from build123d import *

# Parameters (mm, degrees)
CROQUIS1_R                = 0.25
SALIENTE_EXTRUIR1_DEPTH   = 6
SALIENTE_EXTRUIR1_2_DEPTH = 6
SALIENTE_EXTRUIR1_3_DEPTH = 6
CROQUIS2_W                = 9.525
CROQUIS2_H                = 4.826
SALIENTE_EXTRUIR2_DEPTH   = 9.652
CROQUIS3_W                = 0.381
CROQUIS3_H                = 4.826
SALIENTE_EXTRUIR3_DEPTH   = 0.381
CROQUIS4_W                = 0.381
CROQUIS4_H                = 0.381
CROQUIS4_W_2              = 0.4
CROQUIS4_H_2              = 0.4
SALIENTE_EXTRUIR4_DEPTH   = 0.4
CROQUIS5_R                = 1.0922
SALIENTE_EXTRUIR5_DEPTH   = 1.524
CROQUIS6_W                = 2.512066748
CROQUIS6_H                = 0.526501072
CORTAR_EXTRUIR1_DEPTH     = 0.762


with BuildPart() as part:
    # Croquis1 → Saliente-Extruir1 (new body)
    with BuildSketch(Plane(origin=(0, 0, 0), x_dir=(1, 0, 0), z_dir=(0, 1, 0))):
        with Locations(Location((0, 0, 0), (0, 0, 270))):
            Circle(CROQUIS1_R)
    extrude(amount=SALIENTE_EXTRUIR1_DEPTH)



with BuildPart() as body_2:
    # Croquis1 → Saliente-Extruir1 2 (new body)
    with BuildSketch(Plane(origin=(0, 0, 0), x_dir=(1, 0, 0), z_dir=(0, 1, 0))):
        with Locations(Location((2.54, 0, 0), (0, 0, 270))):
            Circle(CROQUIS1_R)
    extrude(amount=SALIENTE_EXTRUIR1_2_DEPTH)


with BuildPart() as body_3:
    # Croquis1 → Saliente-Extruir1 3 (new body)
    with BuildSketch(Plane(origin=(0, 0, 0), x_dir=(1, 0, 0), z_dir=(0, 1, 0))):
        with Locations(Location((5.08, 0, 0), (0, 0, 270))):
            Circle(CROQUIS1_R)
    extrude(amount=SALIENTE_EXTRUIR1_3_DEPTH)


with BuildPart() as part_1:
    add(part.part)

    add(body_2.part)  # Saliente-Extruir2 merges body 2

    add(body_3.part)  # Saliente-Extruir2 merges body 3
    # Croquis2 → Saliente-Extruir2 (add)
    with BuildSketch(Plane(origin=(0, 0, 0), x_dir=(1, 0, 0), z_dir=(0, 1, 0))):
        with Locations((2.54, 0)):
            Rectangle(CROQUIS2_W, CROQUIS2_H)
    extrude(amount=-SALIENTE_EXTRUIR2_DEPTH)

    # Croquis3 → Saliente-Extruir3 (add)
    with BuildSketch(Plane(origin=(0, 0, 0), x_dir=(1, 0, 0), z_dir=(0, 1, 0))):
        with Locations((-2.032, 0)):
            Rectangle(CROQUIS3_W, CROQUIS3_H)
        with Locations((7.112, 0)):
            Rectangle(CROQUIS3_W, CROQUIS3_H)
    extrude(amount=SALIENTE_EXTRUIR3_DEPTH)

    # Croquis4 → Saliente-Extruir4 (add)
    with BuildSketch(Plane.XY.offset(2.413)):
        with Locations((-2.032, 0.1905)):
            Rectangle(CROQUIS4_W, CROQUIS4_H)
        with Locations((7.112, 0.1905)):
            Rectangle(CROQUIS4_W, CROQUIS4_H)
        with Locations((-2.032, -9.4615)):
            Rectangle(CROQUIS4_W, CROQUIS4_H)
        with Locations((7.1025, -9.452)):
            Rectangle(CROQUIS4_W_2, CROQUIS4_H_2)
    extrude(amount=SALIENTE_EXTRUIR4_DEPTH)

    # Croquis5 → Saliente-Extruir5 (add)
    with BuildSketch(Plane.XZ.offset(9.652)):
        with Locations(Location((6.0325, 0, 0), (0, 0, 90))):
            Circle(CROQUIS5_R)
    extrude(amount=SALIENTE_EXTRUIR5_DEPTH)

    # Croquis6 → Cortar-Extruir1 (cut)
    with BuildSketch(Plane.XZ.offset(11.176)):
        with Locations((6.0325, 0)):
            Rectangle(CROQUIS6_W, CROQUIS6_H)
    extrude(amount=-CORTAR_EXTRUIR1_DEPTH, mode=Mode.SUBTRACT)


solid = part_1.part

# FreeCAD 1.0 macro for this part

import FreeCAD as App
import Part
import Sketcher
Q = App.Units.Quantity


def add_polygon(sketch, points):
    """Adds a closed chain of lines whose ends are joined by coincident constraints."""
    first, n = sketch.GeometryCount, len(points)
    for a, b in zip(points, points[1:] + points[:1]):
        sketch.addGeometry(Part.LineSegment(App.Vector(*a, 0), App.Vector(*b, 0)), False)
    for i in range(n):
        sketch.addConstraint(Sketcher.Constraint("Coincident", first + i, 2, first + (i + 1) % n, 1))

doc = App.newDocument("Part")
body = doc.addObject("PartDesign::Body", "Body")

sketch1 = body.newObject("Sketcher::SketchObject", "Sketch")
sketch1.AttachmentSupport = (doc.getObject("XZ_Plane"), [""])
sketch1.MapMode = "FlatFace"
sketch1.addGeometry(Part.Circle(App.Vector(0, 0, 0), App.Vector(0, 0, 1), 0.25), False)
sketch1.addConstraint(Sketcher.Constraint("Coincident", 0, 3, -1, 1))
sketch1.addConstraint(Sketcher.Constraint("Diameter", 0, 0.5))
pad1 = body.newObject("PartDesign::Pad", "Pad")
pad1.Profile = sketch1
pad1.Length = 6
pad1.Reversed = True
body2 = doc.addObject("PartDesign::Body", "Body001")

sketch2 = body2.newObject("Sketcher::SketchObject", "Sketch001")
sketch2.AttachmentSupport = (doc.getObject("XZ_Plane001"), [""])
sketch2.MapMode = "FlatFace"
sketch2.addGeometry(Part.Circle(App.Vector(2.54, 0, 0), App.Vector(0, 0, 1), 0.25), False)
sketch2.addConstraint(Sketcher.Constraint("PointOnObject", 0, 3, -1))
sketch2.addConstraint(Sketcher.Constraint("DistanceX", -1, 1, 0, 3, Q("0.1 in")))
sketch2.addConstraint(Sketcher.Constraint("Diameter", 0, 0.5))
pad2 = body2.newObject("PartDesign::Pad", "Pad001")
pad2.Profile = sketch2
pad2.Length = 6
pad2.Reversed = True
body3 = doc.addObject("PartDesign::Body", "Body002")

sketch3 = body3.newObject("Sketcher::SketchObject", "Sketch002")
sketch3.AttachmentSupport = (doc.getObject("XZ_Plane002"), [""])
sketch3.MapMode = "FlatFace"
sketch3.addGeometry(Part.Circle(App.Vector(5.08, 0, 0), App.Vector(0, 0, 1), 0.25), False)
sketch3.addConstraint(Sketcher.Constraint("PointOnObject", 0, 3, -1))
sketch3.addConstraint(Sketcher.Constraint("DistanceX", -1, 1, 0, 3, Q("0.2 in")))
sketch3.addConstraint(Sketcher.Constraint("Diameter", 0, 0.5))
pad3 = body3.newObject("PartDesign::Pad", "Pad002")
pad3.Profile = sketch3
pad3.Length = 6
pad3.Reversed = True
body.AllowCompound = True
doc.recompute()

boolean = body.newObject("PartDesign::Boolean", "Boolean")
boolean.Type = "Fuse"
boolean.addObjects([body2])
doc.recompute()

boolean2 = body.newObject("PartDesign::Boolean", "Boolean001")
boolean2.Type = "Fuse"
boolean2.addObjects([body3])

sketch4 = body.newObject("Sketcher::SketchObject", "Sketch003")
sketch4.AttachmentSupport = (doc.getObject("XZ_Plane"), [""])
sketch4.MapMode = "FlatFace"
add_polygon(sketch4, [(-2.2, -2.4), (-2.2, 2.4), (7.3, 2.4), (7.3, -2.4)])
sketch4.addConstraint(Sketcher.Constraint("Vertical", 0))
sketch4.addConstraint(Sketcher.Constraint("Horizontal", 1))
sketch4.addConstraint(Sketcher.Constraint("Vertical", 2))
sketch4.addConstraint(Sketcher.Constraint("Horizontal", 3))
sketch4.addConstraint(Sketcher.Constraint("DistanceY", 0, 1, 0, 2, Q("0.19 in")))
sketch4.addConstraint(Sketcher.Constraint("DistanceX", 1, 1, 1, 2, Q("0.375 in")))
sketch4.addConstraint(Sketcher.Constraint("DistanceY", -1, 1, 0, 2, Q("0.095 in")))
sketch4.addConstraint(Sketcher.Constraint("DistanceX", 0, 2, -1, 1, Q("0.0875 in")))
pad4 = body.newObject("PartDesign::Pad", "Pad003")
pad4.Profile = sketch4
pad4.Length = Q("0.38 in")

sketch5 = body.newObject("Sketcher::SketchObject", "Sketch004")
sketch5.AttachmentSupport = (doc.getObject("XZ_Plane"), [""])
sketch5.MapMode = "FlatFace"
add_polygon(sketch5, [(-2.22, -2.41), (-2.22, 2.41), (-1.84, 2.41), (-1.84, -2.41)])
add_polygon(sketch5, [(6.92, -2.41), (6.92, 2.41), (7.3, 2.41), (7.3, -2.41)])
sketch5.addConstraint(Sketcher.Constraint("Vertical", 0))
sketch5.addConstraint(Sketcher.Constraint("Horizontal", 1))
sketch5.addConstraint(Sketcher.Constraint("Vertical", 2))
sketch5.addConstraint(Sketcher.Constraint("Horizontal", 3))
sketch5.addConstraint(Sketcher.Constraint("Vertical", 4))
sketch5.addConstraint(Sketcher.Constraint("Horizontal", 5))
sketch5.addConstraint(Sketcher.Constraint("Vertical", 6))
sketch5.addConstraint(Sketcher.Constraint("Horizontal", 7))
sketch5.addConstraint(Sketcher.Constraint("Horizontal", 1, 2, 4, 2))
sketch5.addConstraint(Sketcher.Constraint("Horizontal", 3, 2, 6, 2))
sketch5.addConstraint(Sketcher.Constraint("Equal", 3, 5))
sketch5.addConstraint(Sketcher.Constraint("DistanceY", 0, 1, 0, 2, Q("0.19 in")))
sketch5.addConstraint(Sketcher.Constraint("DistanceX", 1, 1, 1, 2, Q("0.015 in")))
sketch5.addConstraint(Sketcher.Constraint("DistanceX", 0, 2, 4, 2, Q("0.36 in")))
sketch5.addConstraint(Sketcher.Constraint("DistanceY", -1, 1, 0, 2, Q("0.095 in")))
sketch5.addConstraint(Sketcher.Constraint("DistanceX", 0, 2, -1, 1, Q("0.0875 in")))
pad5 = body.newObject("PartDesign::Pad", "Pad004")
pad5.Profile = sketch5
pad5.Length = Q("0.015 in")
pad5.Reversed = True

sketch6 = body.newObject("Sketcher::SketchObject", "Sketch005")
sketch6.AttachmentSupport = (doc.getObject("XY_Plane"), [""])
sketch6.MapMode = "FlatFace"
sketch6.AttachmentOffset = App.Placement(App.Vector(0, 0, 0.095 * 25.4), App.Rotation())
add_polygon(sketch6, [(-2.22, 0.38), (-2.22, 0), (-1.84, 0), (-1.84, 0.38)])
add_polygon(sketch6, [(6.92, 0.38), (6.92, 0), (7.3, 0), (7.3, 0.38)])
add_polygon(sketch6, [(-2.22, -9.27), (-2.22, -9.65), (-1.84, -9.65), (-1.84, -9.27)])
add_polygon(sketch6, [(6.9, -9.25), (6.9, -9.65), (7.3, -9.65), (7.3, -9.25)])
sketch6.addConstraint(Sketcher.Constraint("Vertical", 0))
sketch6.addConstraint(Sketcher.Constraint("Horizontal", 1))
sketch6.addConstraint(Sketcher.Constraint("Vertical", 2))
sketch6.addConstraint(Sketcher.Constraint("Horizontal", 3))
sketch6.addConstraint(Sketcher.Constraint("Vertical", 4))
sketch6.addConstraint(Sketcher.Constraint("Horizontal", 5))
sketch6.addConstraint(Sketcher.Constraint("Vertical", 6))
sketch6.addConstraint(Sketcher.Constraint("Horizontal", 7))
sketch6.addConstraint(Sketcher.Constraint("Vertical", 8))
sketch6.addConstraint(Sketcher.Constraint("Horizontal", 9))
sketch6.addConstraint(Sketcher.Constraint("Vertical", 10))
sketch6.addConstraint(Sketcher.Constraint("Horizontal", 11))
sketch6.addConstraint(Sketcher.Constraint("Vertical", 12))
sketch6.addConstraint(Sketcher.Constraint("Horizontal", 13))
sketch6.addConstraint(Sketcher.Constraint("Vertical", 14))
sketch6.addConstraint(Sketcher.Constraint("Horizontal", 15))
sketch6.addConstraint(Sketcher.Constraint("PointOnObject", 0, 2, -1))
sketch6.addConstraint(Sketcher.Constraint("PointOnObject", 4, 2, -1))
sketch6.addConstraint(Sketcher.Constraint("Horizontal", 3, 2, 6, 2))
sketch6.addConstraint(Sketcher.Constraint("Horizontal", 9, 2, 12, 2))
sketch6.addConstraint(Sketcher.Constraint("Vertical", 3, 2, 8, 2))
sketch6.addConstraint(Sketcher.Constraint("Vertical", 2, 2, 9, 2))
sketch6.addConstraint(Sketcher.Constraint("Vertical", 6, 2, 13, 2))
sketch6.addConstraint(Sketcher.Constraint("Equal", 3, 5))
sketch6.addConstraint(Sketcher.Constraint("Equal", 11, 0))
sketch6.addConstraint(Sketcher.Constraint("Equal", 6, 8))
sketch6.addConstraint(Sketcher.Constraint("Equal", 15, 12))
sketch6.addConstraint(Sketcher.Constraint("DistanceX", 1, 1, 1, 2, Q("0.015 in")))
sketch6.addConstraint(Sketcher.Constraint("DistanceY", 8, 2, -1, 1, Q("0.38 in")))
sketch6.addConstraint(Sketcher.Constraint("DistanceX", 0, 2, 4, 2, Q("0.36 in")))
sketch6.addConstraint(Sketcher.Constraint("DistanceX", 13, 1, 13, 2, 0.4))
sketch6.addConstraint(Sketcher.Constraint("DistanceX", 0, 2, -1, 1, Q("0.0875 in")))
pad6 = body.newObject("PartDesign::Pad", "Pad005")
pad6.Profile = sketch6
pad6.Length = 0.4

sketch7 = body.newObject("Sketcher::SketchObject", "Sketch006")
sketch7.AttachmentSupport = (doc.getObject("XZ_Plane"), [""])
sketch7.MapMode = "FlatFace"
sketch7.AttachmentOffset = App.Placement(App.Vector(0, 0, 0.38 * 25.4), App.Rotation())
sketch7.addGeometry(Part.Circle(App.Vector(6, 0, 0), App.Vector(0, 0, 1), 1.1), False)
sketch7.addConstraint(Sketcher.Constraint("PointOnObject", 0, 3, -1))
sketch7.addConstraint(Sketcher.Constraint("Diameter", 0, Q("0.086 in")))
sketch7.addConstraint(Sketcher.Constraint("DistanceX", -1, 1, 0, 3, Q("0.2375 in")))
pad7 = body.newObject("PartDesign::Pad", "Pad006")
pad7.Profile = sketch7
pad7.Length = Q("0.06 in")

sketch8 = body.newObject("Sketcher::SketchObject", "Sketch007")
sketch8.AttachmentSupport = (doc.getObject("XZ_Plane"), [""])
sketch8.MapMode = "FlatFace"
sketch8.AttachmentOffset = App.Placement(App.Vector(0, 0, 0.44 * 25.4), App.Rotation())
add_polygon(sketch8, [(4.8, 0.3), (4.8, -0.3), (7.3, -0.3), (7.3, 0.3)])
sketch8.addConstraint(Sketcher.Constraint("Vertical", 0))
sketch8.addConstraint(Sketcher.Constraint("Horizontal", 1))
sketch8.addConstraint(Sketcher.Constraint("Vertical", 2))
sketch8.addConstraint(Sketcher.Constraint("Horizontal", 3))
sketch8.addConstraint(Sketcher.Constraint("DistanceY", 0, 2, 0, 1, 0.526501))
sketch8.addConstraint(Sketcher.Constraint("DistanceX", 1, 1, 1, 2, 2.512067))
sketch8.addConstraint(Sketcher.Constraint("DistanceY", 0, 2, -1, 1, 0.263251))
sketch8.addConstraint(Sketcher.Constraint("DistanceX", -1, 1, 0, 2, 4.776467))
pocket1 = body.newObject("PartDesign::Pocket", "Pocket")
pocket1.Profile = sketch8
pocket1.Length = Q("0.03 in")

doc.recompute()
